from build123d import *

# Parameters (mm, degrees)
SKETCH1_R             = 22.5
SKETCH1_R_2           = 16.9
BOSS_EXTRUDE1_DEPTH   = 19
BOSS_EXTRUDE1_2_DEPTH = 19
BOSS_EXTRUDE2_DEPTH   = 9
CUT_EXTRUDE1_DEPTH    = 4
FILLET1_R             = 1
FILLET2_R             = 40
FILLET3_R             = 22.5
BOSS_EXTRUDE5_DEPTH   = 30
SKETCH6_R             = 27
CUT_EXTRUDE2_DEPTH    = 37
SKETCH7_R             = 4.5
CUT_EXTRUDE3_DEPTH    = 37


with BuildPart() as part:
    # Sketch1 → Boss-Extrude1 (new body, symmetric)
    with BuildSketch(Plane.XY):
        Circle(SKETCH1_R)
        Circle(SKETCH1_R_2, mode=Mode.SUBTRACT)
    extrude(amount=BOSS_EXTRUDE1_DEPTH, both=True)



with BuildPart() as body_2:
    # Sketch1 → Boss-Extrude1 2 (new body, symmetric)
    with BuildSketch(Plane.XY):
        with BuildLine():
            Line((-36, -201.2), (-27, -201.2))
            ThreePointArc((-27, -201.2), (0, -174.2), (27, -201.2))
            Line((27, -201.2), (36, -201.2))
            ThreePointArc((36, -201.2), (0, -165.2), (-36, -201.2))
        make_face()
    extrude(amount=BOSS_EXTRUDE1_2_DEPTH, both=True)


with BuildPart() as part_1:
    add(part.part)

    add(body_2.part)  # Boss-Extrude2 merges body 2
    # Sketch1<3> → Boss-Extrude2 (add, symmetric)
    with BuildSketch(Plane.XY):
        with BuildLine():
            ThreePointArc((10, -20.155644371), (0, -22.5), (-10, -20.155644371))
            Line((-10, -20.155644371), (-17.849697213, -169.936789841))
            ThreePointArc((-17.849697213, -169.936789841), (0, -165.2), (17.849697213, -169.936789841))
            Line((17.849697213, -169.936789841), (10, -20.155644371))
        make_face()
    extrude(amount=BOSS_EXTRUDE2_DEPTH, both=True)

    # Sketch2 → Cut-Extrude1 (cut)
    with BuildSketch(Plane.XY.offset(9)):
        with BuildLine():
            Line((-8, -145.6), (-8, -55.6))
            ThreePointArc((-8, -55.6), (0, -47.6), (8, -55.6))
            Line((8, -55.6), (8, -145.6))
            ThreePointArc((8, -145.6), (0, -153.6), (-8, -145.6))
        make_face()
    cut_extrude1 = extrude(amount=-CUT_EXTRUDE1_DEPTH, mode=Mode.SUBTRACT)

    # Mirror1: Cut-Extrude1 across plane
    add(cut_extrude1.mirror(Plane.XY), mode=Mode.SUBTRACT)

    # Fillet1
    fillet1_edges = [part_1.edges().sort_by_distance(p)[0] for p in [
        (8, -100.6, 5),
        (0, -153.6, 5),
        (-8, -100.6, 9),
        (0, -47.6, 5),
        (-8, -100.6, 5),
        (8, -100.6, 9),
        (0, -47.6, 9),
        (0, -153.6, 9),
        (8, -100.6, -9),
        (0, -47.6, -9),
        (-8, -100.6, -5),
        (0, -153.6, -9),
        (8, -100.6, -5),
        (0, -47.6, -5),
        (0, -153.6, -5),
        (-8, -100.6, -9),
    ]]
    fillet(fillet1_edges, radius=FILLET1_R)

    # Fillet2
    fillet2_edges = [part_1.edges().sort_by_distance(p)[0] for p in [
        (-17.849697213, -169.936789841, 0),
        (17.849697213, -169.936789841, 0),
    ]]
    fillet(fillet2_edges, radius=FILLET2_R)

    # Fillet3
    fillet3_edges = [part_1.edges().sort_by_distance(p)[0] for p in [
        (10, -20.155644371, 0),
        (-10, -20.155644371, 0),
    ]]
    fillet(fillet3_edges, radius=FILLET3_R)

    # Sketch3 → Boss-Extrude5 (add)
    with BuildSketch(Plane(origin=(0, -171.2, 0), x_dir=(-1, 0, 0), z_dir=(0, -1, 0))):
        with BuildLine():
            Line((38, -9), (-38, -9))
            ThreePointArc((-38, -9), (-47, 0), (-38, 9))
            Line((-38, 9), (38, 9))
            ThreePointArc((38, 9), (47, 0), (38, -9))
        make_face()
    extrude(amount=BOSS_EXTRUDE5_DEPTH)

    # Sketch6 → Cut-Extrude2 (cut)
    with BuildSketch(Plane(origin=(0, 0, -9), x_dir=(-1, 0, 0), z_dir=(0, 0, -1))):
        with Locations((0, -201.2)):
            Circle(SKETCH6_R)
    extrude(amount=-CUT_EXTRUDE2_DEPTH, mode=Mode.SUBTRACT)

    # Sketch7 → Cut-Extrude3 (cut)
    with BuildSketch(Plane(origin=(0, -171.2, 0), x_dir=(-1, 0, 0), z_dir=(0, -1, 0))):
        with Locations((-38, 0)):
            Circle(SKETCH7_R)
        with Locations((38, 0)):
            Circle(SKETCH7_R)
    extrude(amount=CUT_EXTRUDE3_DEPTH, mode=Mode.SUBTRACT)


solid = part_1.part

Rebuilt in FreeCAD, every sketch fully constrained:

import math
import FreeCAD as App
import Part
import Sketcher

V = App.Vector
Q = App.Units.Quantity


def edges_at(feature, points):
    """Names of the edges that pass closest to the given points."""
    edges = feature.Shape.Edges
    near = lambda p: min(range(len(edges)), key=lambda i: edges[i].distToShape(Part.Vertex(*p))[0])
    return sorted({f"Edge{near(p) + 1}" for p in points})

doc = App.newDocument("Part")
body = doc.addObject("PartDesign::Body", "Body")

# Sketch on XY plane
sketch1 = body.newObject("Sketcher::SketchObject", "Sketch")
sketch1.AttachmentSupport = (doc.getObject("XY_Plane"), [""])
sketch1.MapMode = "FlatFace"
sketch1.addGeometry(Part.Circle(V(0, 0, 0), V(0, 0, 1), 22), False)
sketch1.addGeometry(Part.Circle(V(0, 0, 0), V(0, 0, 1), 17), False)
sketch1.addConstraint(Sketcher.Constraint("Coincident", 0, 3, -1, 1))
sketch1.addConstraint(Sketcher.Constraint("Coincident", 1, 3, -1, 1))
sketch1.addConstraint(Sketcher.Constraint("Diameter", 0, Q("45 mm")))
sketch1.addConstraint(Sketcher.Constraint("Diameter", 1, Q("33.8 mm")))
pad1 = body.newObject("PartDesign::Pad", "Pad")
pad1.Profile = sketch1
pad1.Length = 38
pad1.Midplane = True
body2 = doc.addObject("PartDesign::Body", "Body001")

# Sketch on XY plane
sketch2 = body2.newObject("Sketcher::SketchObject", "Sketch001")
sketch2.AttachmentSupport = (doc.getObject("XY_Plane001"), [""])
sketch2.MapMode = "FlatFace"
sketch2.addGeometry(Part.LineSegment(V(-36, -201, 0), V(-27, -201, 0)), False)
sketch2.addGeometry(Part.ArcOfCircle(Part.Circle(V(0, -201, 0), V(0, 0, 1), 27), math.radians(0), math.radians(180)), False)
sketch2.addGeometry(Part.LineSegment(V(27, -201, 0), V(36, -201, 0)), False)
sketch2.addGeometry(Part.ArcOfCircle(Part.Circle(V(0, -201, 0), V(0, 0, 1), 36), math.radians(0), math.radians(180)), False)
sketch2.addConstraint(Sketcher.Constraint("Coincident", 0, 2, 1, 2))
sketch2.addConstraint(Sketcher.Constraint("Coincident", 1, 1, 2, 1))
sketch2.addConstraint(Sketcher.Constraint("Coincident", 2, 2, 3, 1))
sketch2.addConstraint(Sketcher.Constraint("Coincident", 3, 2, 0, 1))
sketch2.addConstraint(Sketcher.Constraint("Horizontal", 0))
sketch2.addConstraint(Sketcher.Constraint("Horizontal", 2))
sketch2.addConstraint(Sketcher.Constraint("Coincident", 3, 3, 1, 3))
sketch2.addConstraint(Sketcher.Constraint("Symmetric", 0, 2, 1, 1, -2))
sketch2.addConstraint(Sketcher.Constraint("Horizontal", 3, 3, 0, 2))
sketch2.addConstraint(Sketcher.Constraint("Radius", 1, Q("27 mm")))
sketch2.addConstraint(Sketcher.Constraint("Radius", 3, Q("36 mm")))
sketch2.addConstraint(Sketcher.Constraint("DistanceY", 1, 3, -1, 1, Q("201.2 mm")))
pad2 = body2.newObject("PartDesign::Pad", "Pad001")
pad2.Profile = sketch2
pad2.Length = 38
pad2.Midplane = True
body.AllowCompound = True
doc.recompute()

boolean = body.newObject("PartDesign::Boolean", "Boolean")
boolean.Type = "Fuse"
boolean.addObjects([body2])

# Sketch on XY plane
sketch3 = body.newObject("Sketcher::SketchObject", "Sketch002")
sketch3.AttachmentSupport = (doc.getObject("XY_Plane"), [""])
sketch3.MapMode = "FlatFace"
sketch3.addGeometry(Part.ArcOfCircle(Part.Circle(V(0, 0, 0), V(0, 0, 1), 23), math.radians(-116), math.radians(-64)), False)
sketch3.addGeometry(Part.LineSegment(V(-10, -20, 0), V(-18, -170, 0)), False)
sketch3.addGeometry(Part.ArcOfCircle(Part.Circle(V(0, -201, 0), V(0, 0, 1), 36), math.radians(60), math.radians(120)), False)
sketch3.addGeometry(Part.LineSegment(V(18, -170, 0), V(10, -20, 0)), False)
sketch3.addConstraint(Sketcher.Constraint("Coincident", 0, 1, 1, 1))
sketch3.addConstraint(Sketcher.Constraint("Coincident", 1, 2, 2, 2))
sketch3.addConstraint(Sketcher.Constraint("Coincident", 2, 1, 3, 1))
sketch3.addConstraint(Sketcher.Constraint("Coincident", 3, 2, 0, 2))
sketch3.addConstraint(Sketcher.Constraint("Coincident", 0, 3, -1, 1))
sketch3.addConstraint(Sketcher.Constraint("Symmetric", 1, 2, 2, 1, -2))
sketch3.addConstraint(Sketcher.Constraint("Horizontal", 0, 1, 3, 2))
sketch3.addConstraint(Sketcher.Constraint("Radius", 2, Q("36 mm")))
sketch3.addConstraint(Sketcher.Constraint("Radius", 0, Q("22.5 mm")))
sketch3.addConstraint(Sketcher.Constraint("Angle", 1, Q("-93 deg")))
sketch3.addConstraint(Sketcher.Constraint("DistanceX", 0, 1, -1, 1, Q("10 mm")))
sketch3.addConstraint(Sketcher.Constraint("DistanceY", 2, 3, -1, 1, Q("201.2 mm")))
pad3 = body.newObject("PartDesign::Pad", "Pad002")
pad3.Profile = sketch3
pad3.Length = 18
pad3.Midplane = True

# Sketch on XY plane
sketch4 = body.newObject("Sketcher::SketchObject", "Sketch003")
sketch4.AttachmentSupport = (doc.getObject("XY_Plane"), [""])
sketch4.MapMode = "FlatFace"
sketch4.AttachmentOffset = App.Placement(V(0, 0, 9), App.Rotation())
sketch4.addGeometry(Part.LineSegment(V(-8, -56, 0), V(-8, -146, 0)), False)
sketch4.addGeometry(Part.ArcOfCircle(Part.Circle(V(0, -146, 0), V(0, 0, 1), 8), math.radians(180), math.radians(360)), False)
sketch4.addGeometry(Part.LineSegment(V(8, -146, 0), V(8, -56, 0)), False)
sketch4.addGeometry(Part.ArcOfCircle(Part.Circle(V(0, -56, 0), V(0, 0, 1), 8), math.radians(0), math.radians(180)), False)
sketch4.addConstraint(Sketcher.Constraint("Tangent", 0, 2, 1, 1))
sketch4.addConstraint(Sketcher.Constraint("Tangent", 1, 2, 2, 1))
sketch4.addConstraint(Sketcher.Constraint("Tangent", 2, 2, 3, 1))
sketch4.addConstraint(Sketcher.Constraint("Tangent", 3, 2, 0, 1))
sketch4.addConstraint(Sketcher.Constraint("Vertical", 0))
sketch4.addConstraint(Sketcher.Constraint("Vertical", 2))
sketch4.addConstraint(Sketcher.Constraint("PointOnObject", 1, 3, -2))
sketch4.addConstraint(Sketcher.Constraint("Radius", 1, Q("8 mm")))
sketch4.addConstraint(Sketcher.Constraint("DistanceY", 0, 2, 0, 1, Q("90 mm")))
sketch4.addConstraint(Sketcher.Constraint("DistanceY", 1, 3, -1, 1, Q("145.6 mm")))
pocket1 = body.newObject("PartDesign::Pocket", "Pocket")
pocket1.Profile = sketch4
pocket1.Length = 4
doc.recompute()

mirrored = body.newObject("PartDesign::Mirrored", "Mirrored")
mirrored.Originals = [pocket1]
mirrored.MirrorPlane = (doc.getObject("XY_Plane"), [""])
body.Tip = mirrored
doc.recompute()

fillet = body.newObject("PartDesign::Fillet", "Fillet")
fillet.Base = (mirrored, edges_at(mirrored, [
    (8, -100.6, 5),
    (0, -153.6, 5),
    (-8, -100.6, 9),
    (0, -47.6, 5),
    (-8, -100.6, 5),
    (8, -100.6, 9),
    (0, -47.6, 9),
    (0, -153.6, 9),
    (8, -100.6, -9),
    (0, -47.6, -9),
    (-8, -100.6, -5),
    (0, -153.6, -9),
    (8, -100.6, -5),
    (0, -47.6, -5),
    (0, -153.6, -5),
    (-8, -100.6, -9),
]))
fillet.Radius = 1
doc.recompute()

fillet2 = body.newObject("PartDesign::Fillet", "Fillet001")
fillet2.Base = (fillet, edges_at(fillet, [(-17.85, -169.937, 0), (17.85, -169.937, 0)]))
fillet2.Radius = 40
doc.recompute()

fillet3 = body.newObject("PartDesign::Fillet", "Fillet002")
fillet3.Base = (fillet2, edges_at(fillet2, [(10, -20.156, 0), (-10, -20.156, 0)]))
fillet3.Radius = 22.5

# Sketch on XZ plane
sketch5 = body.newObject("Sketcher::SketchObject", "Sketch004")
sketch5.AttachmentSupport = (doc.getObject("XZ_Plane"), [""])
sketch5.MapMode = "FlatFace"
sketch5.AttachmentOffset = App.Placement(V(0, 0, 171.2), App.Rotation())
sketch5.addGeometry(Part.LineSegment(V(38, 9, 0), V(-38, 9, 0)), False)
sketch5.addGeometry(Part.ArcOfCircle(Part.Circle(V(-38, 0, 0), V(0, 0, 1), 9), math.radians(90), math.radians(270)), False)
sketch5.addGeometry(Part.LineSegment(V(-38, -9, 0), V(38, -9, 0)), False)
sketch5.addGeometry(Part.ArcOfCircle(Part.Circle(V(38, 0, 0), V(0, 0, 1), 9), math.radians(-90), math.radians(90)), False)
sketch5.addConstraint(Sketcher.Constraint("Tangent", 0, 2, 1, 1))
sketch5.addConstraint(Sketcher.Constraint("Tangent", 1, 2, 2, 1))
sketch5.addConstraint(Sketcher.Constraint("Tangent", 2, 2, 3, 1))
sketch5.addConstraint(Sketcher.Constraint("Tangent", 3, 2, 0, 1))
sketch5.addConstraint(Sketcher.Constraint("Horizontal", 0))
sketch5.addConstraint(Sketcher.Constraint("Horizontal", 2))
sketch5.addConstraint(Sketcher.Constraint("Symmetric", 1, 3, 3, 3, -1, 1))
sketch5.addConstraint(Sketcher.Constraint("Radius", 1, Q("9 mm")))
sketch5.addConstraint(Sketcher.Constraint("DistanceX", 0, 2, 0, 1, Q("76 mm")))
pad4 = body.newObject("PartDesign::Pad", "Pad003")
pad4.Profile = sketch5
pad4.Length = 30

# Sketch on XY plane
sketch6 = body.newObject("Sketcher::SketchObject", "Sketch005")
sketch6.AttachmentSupport = (doc.getObject("XY_Plane"), [""])
sketch6.MapMode = "FlatFace"
sketch6.AttachmentOffset = App.Placement(V(0, 0, -9), App.Rotation())
sketch6.addGeometry(Part.Circle(V(0, -201, 0), V(0, 0, 1), 27), False)
sketch6.addConstraint(Sketcher.Constraint("PointOnObject", 0, 3, -2))
sketch6.addConstraint(Sketcher.Constraint("Diameter", 0, Q("54 mm")))
sketch6.addConstraint(Sketcher.Constraint("DistanceY", 0, 3, -1, 1, Q("201.2 mm")))
pocket2 = body.newObject("PartDesign::Pocket", "Pocket001")
pocket2.Profile = sketch6
pocket2.Length = 37
pocket2.Reversed = True

# Sketch on XZ plane
sketch7 = body.newObject("Sketcher::SketchObject", "Sketch006")
sketch7.AttachmentSupport = (doc.getObject("XZ_Plane"), [""])
sketch7.MapMode = "FlatFace"
sketch7.AttachmentOffset = App.Placement(V(0, 0, 171.2), App.Rotation())
sketch7.addGeometry(Part.Circle(V(38, 0, 0), V(0, 0, 1), 4.5), False)
sketch7.addGeometry(Part.Circle(V(-38, 0, 0), V(0, 0, 1), 4.5), False)
sketch7.addConstraint(Sketcher.Constraint("Equal", 0, 1))
sketch7.addConstraint(Sketcher.Constraint("Symmetric", 0, 3, 1, 3, -1, 1))
sketch7.addConstraint(Sketcher.Constraint("PointOnObject", 0, 3, -1))
sketch7.addConstraint(Sketcher.Constraint("Diameter", 0, Q("9 mm")))
sketch7.addConstraint(Sketcher.Constraint("DistanceX", -1, 1, 0, 3, Q("38 mm")))
pocket3 = body.newObject("PartDesign::Pocket", "Pocket002")
pocket3.Profile = sketch7
pocket3.Length = 37
pocket3.Reversed = True

doc.recompute()
